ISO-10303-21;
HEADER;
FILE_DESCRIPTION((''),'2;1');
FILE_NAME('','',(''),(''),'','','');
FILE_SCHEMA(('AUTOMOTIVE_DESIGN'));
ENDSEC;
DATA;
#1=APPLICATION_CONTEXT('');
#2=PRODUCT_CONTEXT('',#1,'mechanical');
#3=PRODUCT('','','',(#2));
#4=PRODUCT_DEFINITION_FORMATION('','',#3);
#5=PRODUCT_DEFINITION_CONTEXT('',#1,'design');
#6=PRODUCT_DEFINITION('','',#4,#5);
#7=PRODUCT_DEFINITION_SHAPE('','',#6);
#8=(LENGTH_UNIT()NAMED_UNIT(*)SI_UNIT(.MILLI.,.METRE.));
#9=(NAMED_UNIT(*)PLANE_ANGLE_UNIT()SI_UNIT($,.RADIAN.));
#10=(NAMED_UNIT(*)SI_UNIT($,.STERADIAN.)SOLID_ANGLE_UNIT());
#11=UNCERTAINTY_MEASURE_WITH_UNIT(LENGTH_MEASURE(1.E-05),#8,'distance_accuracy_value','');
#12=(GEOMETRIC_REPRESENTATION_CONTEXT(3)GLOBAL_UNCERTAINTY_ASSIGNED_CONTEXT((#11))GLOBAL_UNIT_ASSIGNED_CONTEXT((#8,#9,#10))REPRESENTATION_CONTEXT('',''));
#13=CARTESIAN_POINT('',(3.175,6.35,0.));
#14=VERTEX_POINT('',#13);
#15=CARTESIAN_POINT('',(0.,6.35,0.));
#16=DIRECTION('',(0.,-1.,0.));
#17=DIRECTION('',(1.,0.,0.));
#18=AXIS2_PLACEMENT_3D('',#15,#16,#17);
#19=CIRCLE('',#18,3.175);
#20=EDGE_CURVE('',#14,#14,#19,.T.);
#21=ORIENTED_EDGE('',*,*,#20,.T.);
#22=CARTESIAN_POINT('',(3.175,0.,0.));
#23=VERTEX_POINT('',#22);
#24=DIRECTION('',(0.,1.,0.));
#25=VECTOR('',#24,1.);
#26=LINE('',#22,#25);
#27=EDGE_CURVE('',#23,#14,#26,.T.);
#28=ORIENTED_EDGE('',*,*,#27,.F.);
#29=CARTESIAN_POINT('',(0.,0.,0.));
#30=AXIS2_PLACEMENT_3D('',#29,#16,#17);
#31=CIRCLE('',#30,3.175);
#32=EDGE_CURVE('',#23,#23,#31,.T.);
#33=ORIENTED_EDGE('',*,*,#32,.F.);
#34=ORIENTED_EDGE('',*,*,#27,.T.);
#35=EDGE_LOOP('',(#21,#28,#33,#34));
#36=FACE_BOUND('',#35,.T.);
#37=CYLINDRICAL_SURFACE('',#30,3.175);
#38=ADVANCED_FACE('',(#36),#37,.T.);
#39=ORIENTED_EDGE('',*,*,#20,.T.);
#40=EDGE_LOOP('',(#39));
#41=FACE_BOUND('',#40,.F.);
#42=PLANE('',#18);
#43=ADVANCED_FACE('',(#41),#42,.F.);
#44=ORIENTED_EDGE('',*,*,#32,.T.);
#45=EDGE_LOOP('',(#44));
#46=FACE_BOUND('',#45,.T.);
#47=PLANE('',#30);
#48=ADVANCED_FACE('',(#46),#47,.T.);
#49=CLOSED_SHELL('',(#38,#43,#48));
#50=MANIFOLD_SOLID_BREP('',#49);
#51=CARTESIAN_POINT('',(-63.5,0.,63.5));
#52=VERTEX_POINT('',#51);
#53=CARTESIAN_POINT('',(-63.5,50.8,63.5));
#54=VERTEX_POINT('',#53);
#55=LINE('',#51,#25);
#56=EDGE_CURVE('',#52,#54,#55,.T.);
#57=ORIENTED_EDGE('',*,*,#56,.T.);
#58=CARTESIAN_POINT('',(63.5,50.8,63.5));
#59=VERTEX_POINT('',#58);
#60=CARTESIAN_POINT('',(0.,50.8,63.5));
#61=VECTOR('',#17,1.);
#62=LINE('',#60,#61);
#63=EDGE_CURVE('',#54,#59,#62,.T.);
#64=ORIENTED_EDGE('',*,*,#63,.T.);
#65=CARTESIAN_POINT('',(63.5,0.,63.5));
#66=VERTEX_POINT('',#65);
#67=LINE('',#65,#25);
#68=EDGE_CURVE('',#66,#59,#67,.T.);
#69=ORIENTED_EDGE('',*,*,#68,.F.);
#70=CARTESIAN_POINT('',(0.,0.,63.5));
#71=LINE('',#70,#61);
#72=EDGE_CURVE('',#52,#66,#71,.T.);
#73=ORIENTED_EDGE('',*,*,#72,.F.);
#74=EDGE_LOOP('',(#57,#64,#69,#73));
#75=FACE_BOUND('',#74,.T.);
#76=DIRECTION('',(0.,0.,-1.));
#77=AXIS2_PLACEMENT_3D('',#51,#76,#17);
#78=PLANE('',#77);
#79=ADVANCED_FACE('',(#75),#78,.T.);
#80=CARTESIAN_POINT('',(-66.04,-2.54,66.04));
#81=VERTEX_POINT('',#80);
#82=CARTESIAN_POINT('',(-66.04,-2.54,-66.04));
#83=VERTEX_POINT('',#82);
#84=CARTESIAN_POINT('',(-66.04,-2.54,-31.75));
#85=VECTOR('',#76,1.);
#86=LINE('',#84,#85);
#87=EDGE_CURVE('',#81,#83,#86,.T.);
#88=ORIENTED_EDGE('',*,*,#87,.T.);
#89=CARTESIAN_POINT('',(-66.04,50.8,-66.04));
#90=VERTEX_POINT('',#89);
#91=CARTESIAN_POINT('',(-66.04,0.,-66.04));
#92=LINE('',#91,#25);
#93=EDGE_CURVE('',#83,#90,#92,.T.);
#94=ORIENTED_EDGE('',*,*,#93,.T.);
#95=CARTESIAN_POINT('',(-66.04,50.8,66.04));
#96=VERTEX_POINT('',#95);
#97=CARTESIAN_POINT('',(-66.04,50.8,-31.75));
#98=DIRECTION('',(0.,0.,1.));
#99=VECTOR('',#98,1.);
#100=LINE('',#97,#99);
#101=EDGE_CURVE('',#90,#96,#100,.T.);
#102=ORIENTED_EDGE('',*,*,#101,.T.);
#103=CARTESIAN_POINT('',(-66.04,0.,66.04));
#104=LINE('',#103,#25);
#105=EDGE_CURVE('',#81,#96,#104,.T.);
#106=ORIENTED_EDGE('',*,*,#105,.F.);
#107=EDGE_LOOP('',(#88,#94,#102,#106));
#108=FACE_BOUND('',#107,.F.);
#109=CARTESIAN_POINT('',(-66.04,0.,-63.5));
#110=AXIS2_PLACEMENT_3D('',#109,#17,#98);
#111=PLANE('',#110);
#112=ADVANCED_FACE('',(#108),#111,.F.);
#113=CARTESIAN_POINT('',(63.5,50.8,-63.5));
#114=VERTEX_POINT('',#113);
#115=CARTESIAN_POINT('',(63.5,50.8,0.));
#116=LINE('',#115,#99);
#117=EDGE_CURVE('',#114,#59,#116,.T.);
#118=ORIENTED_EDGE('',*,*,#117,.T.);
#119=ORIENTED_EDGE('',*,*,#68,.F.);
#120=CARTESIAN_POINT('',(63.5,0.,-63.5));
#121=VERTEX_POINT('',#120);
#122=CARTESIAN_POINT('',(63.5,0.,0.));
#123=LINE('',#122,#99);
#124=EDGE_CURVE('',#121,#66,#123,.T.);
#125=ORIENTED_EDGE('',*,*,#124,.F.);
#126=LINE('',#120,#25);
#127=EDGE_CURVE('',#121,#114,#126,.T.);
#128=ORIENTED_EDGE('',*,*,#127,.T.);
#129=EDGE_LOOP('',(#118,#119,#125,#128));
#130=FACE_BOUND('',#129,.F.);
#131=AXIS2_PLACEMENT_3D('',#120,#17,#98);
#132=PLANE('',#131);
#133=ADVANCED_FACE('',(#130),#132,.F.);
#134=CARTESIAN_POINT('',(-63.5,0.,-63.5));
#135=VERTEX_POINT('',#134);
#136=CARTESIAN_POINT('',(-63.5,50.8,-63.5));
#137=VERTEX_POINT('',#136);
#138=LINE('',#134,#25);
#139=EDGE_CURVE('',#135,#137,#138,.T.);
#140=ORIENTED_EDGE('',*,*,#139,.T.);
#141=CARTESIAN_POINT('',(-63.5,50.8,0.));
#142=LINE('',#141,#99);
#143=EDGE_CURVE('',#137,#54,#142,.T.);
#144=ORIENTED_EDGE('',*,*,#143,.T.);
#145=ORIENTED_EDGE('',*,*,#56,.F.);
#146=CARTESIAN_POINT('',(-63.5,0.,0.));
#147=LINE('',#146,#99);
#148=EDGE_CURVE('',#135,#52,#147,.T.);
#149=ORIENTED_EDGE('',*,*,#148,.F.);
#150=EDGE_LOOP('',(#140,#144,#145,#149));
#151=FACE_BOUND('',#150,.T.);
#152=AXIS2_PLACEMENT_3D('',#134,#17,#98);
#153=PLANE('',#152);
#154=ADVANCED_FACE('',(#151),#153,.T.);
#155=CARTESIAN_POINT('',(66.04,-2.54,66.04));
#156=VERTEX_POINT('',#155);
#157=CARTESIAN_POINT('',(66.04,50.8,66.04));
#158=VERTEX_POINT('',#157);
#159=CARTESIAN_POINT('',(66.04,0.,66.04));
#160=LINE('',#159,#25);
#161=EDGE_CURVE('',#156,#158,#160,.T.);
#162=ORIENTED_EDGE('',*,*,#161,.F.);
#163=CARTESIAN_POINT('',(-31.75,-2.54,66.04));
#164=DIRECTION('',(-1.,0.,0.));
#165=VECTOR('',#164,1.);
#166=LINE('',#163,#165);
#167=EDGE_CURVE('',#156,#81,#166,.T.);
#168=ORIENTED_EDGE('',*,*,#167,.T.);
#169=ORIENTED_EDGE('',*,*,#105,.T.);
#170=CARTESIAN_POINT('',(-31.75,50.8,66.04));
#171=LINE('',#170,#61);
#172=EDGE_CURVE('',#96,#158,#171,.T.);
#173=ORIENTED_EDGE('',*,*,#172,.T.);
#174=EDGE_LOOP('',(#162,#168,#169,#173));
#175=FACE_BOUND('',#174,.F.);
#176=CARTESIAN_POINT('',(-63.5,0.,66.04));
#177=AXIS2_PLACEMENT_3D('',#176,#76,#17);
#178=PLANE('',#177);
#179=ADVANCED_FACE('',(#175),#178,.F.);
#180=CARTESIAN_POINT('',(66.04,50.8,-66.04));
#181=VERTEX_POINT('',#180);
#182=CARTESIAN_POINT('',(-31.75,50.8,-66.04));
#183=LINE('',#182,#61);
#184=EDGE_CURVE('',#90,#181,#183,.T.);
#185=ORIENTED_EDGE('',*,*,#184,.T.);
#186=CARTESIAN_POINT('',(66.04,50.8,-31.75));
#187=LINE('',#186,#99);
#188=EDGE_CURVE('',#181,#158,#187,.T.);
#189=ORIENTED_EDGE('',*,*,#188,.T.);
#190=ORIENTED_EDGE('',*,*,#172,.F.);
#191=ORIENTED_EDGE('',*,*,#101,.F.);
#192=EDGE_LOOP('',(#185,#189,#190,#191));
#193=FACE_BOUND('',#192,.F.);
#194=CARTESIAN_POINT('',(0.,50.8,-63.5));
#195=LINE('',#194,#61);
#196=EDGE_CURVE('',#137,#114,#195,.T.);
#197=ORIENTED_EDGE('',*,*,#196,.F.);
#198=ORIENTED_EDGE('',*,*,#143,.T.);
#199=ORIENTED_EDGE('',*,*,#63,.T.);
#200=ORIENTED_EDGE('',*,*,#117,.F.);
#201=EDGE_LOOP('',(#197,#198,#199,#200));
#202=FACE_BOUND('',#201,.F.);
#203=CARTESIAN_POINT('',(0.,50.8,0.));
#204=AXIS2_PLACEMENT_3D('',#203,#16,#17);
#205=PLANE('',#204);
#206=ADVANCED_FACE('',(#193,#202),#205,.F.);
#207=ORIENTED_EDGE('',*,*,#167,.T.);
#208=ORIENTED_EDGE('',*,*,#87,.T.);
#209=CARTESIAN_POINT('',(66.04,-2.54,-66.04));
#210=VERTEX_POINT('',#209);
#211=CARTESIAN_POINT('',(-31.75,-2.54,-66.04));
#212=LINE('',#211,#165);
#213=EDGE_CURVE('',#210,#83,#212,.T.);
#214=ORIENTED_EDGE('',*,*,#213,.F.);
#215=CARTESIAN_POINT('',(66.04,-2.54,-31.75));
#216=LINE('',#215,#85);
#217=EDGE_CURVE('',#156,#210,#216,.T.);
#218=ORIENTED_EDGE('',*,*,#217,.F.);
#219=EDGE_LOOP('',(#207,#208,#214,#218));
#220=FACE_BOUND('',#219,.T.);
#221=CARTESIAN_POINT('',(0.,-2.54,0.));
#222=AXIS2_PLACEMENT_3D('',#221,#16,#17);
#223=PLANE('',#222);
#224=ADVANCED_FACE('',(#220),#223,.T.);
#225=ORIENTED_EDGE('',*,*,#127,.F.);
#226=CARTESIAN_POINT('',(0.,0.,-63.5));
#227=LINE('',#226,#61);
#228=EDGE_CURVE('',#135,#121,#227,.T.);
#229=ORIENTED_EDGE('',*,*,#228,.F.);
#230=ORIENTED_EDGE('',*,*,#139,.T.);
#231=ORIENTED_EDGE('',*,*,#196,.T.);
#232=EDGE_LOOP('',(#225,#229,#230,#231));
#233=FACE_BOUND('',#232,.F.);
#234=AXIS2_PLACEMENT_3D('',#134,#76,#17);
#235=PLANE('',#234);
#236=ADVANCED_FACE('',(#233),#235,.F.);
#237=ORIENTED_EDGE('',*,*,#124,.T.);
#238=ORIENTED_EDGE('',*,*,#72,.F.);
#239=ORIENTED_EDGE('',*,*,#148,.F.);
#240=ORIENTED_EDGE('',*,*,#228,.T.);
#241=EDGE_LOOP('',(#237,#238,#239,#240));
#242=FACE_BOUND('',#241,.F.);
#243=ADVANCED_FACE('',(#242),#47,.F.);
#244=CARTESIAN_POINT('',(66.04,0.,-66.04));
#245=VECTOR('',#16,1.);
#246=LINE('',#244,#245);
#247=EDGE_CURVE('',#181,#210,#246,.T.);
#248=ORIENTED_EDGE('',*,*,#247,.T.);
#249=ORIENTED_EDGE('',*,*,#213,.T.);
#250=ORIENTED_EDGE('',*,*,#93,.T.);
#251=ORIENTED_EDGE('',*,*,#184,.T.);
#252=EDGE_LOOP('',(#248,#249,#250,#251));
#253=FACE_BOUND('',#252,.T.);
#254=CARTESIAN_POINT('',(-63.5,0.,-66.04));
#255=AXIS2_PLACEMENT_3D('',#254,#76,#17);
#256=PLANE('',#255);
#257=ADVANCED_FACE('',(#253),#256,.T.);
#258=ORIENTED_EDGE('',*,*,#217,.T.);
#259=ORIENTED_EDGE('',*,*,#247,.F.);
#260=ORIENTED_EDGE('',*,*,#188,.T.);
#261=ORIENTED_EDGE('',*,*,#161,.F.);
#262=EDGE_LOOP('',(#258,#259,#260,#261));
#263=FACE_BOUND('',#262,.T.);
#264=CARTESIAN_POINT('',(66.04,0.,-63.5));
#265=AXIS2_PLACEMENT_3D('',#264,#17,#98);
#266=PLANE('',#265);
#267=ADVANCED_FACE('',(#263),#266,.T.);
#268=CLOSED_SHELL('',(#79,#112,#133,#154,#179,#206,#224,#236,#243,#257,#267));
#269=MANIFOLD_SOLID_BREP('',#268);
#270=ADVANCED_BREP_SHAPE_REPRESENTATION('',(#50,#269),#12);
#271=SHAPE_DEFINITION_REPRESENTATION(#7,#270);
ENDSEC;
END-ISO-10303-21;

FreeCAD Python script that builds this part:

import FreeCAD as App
import Part
import Sketcher

V = App.Vector
Q = App.Units.Quantity


def faces_at(feature, points):
    """Names of the faces that lie closest to the given points."""
    faces = feature.Shape.Faces
    near = lambda p: min(range(len(faces)), key=lambda i: faces[i].distToShape(Part.Vertex(*p))[0])
    return sorted({f"Face{near(p) + 1}" for p in points})

doc = App.newDocument("Part")
body = doc.addObject("PartDesign::Body", "Body")

sketch1 = body.newObject("Sketcher::SketchObject", "Sketch")
sketch1.AttachmentSupport = (doc.getObject("XZ_Plane"), [""])
sketch1.MapMode = "FlatFace"
sketch1.addGeometry([
    Part.LineSegment(V(-64, 64, 0), V(-64, -64, 0)),
    Part.LineSegment(V(-64, -64, 0), V(64, -64, 0)),
    Part.LineSegment(V(64, -64, 0), V(64, 64, 0)),
    Part.LineSegment(V(64, 64, 0), V(-64, 64, 0)),
], False)
sketch1.addConstraint([
    Sketcher.Constraint("Coincident", 0, 2, 1, 1),
    Sketcher.Constraint("Coincident", 1, 2, 2, 1),
    Sketcher.Constraint("Coincident", 2, 2, 3, 1),
    Sketcher.Constraint("Coincident", 3, 2, 0, 1),
    Sketcher.Constraint("Vertical", 0),
    Sketcher.Constraint("Horizontal", 1),
    Sketcher.Constraint("Vertical", 2),
    Sketcher.Constraint("Horizontal", 3),
    Sketcher.Constraint("Symmetric", 0, 2, 2, 2, -1, 1),
    Sketcher.Constraint("Equal", 3, 0),
    Sketcher.Constraint("DistanceX", 1, 1, 1, 2, Q("5 in")),
])
pad1 = body.newObject("PartDesign::Pad", "Pad")
pad1.Profile = sketch1
pad1.Length = Q("2 in")
pad1.Reversed = True
doc.recompute()

thickness = body.newObject("PartDesign::Thickness", "Thickness")
thickness.Base = (pad1, faces_at(pad1, [(0, 50.8, 0)]))
thickness.Value = Q("0.1 in")
thickness.Reversed = False
thickness.Join = "Intersection"
body2 = doc.addObject("PartDesign::Body", "Body001")

sketch2 = body2.newObject("Sketcher::SketchObject", "Sketch001")
sketch2.AttachmentSupport = (doc.getObject("XZ_Plane001"), [""])
sketch2.MapMode = "FlatFace"
sketch2.addGeometry(Part.Circle(V(0, 0, 0), V(0, 0, 1), 3.2), False)
sketch2.addConstraint([
    Sketcher.Constraint("Coincident", 0, 3, -1, 1),
    Sketcher.Constraint("Diameter", 0, Q("0.25 in")),
])
pad2 = body2.newObject("PartDesign::Pad", "Pad001")
pad2.Profile = sketch2
pad2.Length = Q("0.25 in")
pad2.Reversed = True

doc.recompute()
